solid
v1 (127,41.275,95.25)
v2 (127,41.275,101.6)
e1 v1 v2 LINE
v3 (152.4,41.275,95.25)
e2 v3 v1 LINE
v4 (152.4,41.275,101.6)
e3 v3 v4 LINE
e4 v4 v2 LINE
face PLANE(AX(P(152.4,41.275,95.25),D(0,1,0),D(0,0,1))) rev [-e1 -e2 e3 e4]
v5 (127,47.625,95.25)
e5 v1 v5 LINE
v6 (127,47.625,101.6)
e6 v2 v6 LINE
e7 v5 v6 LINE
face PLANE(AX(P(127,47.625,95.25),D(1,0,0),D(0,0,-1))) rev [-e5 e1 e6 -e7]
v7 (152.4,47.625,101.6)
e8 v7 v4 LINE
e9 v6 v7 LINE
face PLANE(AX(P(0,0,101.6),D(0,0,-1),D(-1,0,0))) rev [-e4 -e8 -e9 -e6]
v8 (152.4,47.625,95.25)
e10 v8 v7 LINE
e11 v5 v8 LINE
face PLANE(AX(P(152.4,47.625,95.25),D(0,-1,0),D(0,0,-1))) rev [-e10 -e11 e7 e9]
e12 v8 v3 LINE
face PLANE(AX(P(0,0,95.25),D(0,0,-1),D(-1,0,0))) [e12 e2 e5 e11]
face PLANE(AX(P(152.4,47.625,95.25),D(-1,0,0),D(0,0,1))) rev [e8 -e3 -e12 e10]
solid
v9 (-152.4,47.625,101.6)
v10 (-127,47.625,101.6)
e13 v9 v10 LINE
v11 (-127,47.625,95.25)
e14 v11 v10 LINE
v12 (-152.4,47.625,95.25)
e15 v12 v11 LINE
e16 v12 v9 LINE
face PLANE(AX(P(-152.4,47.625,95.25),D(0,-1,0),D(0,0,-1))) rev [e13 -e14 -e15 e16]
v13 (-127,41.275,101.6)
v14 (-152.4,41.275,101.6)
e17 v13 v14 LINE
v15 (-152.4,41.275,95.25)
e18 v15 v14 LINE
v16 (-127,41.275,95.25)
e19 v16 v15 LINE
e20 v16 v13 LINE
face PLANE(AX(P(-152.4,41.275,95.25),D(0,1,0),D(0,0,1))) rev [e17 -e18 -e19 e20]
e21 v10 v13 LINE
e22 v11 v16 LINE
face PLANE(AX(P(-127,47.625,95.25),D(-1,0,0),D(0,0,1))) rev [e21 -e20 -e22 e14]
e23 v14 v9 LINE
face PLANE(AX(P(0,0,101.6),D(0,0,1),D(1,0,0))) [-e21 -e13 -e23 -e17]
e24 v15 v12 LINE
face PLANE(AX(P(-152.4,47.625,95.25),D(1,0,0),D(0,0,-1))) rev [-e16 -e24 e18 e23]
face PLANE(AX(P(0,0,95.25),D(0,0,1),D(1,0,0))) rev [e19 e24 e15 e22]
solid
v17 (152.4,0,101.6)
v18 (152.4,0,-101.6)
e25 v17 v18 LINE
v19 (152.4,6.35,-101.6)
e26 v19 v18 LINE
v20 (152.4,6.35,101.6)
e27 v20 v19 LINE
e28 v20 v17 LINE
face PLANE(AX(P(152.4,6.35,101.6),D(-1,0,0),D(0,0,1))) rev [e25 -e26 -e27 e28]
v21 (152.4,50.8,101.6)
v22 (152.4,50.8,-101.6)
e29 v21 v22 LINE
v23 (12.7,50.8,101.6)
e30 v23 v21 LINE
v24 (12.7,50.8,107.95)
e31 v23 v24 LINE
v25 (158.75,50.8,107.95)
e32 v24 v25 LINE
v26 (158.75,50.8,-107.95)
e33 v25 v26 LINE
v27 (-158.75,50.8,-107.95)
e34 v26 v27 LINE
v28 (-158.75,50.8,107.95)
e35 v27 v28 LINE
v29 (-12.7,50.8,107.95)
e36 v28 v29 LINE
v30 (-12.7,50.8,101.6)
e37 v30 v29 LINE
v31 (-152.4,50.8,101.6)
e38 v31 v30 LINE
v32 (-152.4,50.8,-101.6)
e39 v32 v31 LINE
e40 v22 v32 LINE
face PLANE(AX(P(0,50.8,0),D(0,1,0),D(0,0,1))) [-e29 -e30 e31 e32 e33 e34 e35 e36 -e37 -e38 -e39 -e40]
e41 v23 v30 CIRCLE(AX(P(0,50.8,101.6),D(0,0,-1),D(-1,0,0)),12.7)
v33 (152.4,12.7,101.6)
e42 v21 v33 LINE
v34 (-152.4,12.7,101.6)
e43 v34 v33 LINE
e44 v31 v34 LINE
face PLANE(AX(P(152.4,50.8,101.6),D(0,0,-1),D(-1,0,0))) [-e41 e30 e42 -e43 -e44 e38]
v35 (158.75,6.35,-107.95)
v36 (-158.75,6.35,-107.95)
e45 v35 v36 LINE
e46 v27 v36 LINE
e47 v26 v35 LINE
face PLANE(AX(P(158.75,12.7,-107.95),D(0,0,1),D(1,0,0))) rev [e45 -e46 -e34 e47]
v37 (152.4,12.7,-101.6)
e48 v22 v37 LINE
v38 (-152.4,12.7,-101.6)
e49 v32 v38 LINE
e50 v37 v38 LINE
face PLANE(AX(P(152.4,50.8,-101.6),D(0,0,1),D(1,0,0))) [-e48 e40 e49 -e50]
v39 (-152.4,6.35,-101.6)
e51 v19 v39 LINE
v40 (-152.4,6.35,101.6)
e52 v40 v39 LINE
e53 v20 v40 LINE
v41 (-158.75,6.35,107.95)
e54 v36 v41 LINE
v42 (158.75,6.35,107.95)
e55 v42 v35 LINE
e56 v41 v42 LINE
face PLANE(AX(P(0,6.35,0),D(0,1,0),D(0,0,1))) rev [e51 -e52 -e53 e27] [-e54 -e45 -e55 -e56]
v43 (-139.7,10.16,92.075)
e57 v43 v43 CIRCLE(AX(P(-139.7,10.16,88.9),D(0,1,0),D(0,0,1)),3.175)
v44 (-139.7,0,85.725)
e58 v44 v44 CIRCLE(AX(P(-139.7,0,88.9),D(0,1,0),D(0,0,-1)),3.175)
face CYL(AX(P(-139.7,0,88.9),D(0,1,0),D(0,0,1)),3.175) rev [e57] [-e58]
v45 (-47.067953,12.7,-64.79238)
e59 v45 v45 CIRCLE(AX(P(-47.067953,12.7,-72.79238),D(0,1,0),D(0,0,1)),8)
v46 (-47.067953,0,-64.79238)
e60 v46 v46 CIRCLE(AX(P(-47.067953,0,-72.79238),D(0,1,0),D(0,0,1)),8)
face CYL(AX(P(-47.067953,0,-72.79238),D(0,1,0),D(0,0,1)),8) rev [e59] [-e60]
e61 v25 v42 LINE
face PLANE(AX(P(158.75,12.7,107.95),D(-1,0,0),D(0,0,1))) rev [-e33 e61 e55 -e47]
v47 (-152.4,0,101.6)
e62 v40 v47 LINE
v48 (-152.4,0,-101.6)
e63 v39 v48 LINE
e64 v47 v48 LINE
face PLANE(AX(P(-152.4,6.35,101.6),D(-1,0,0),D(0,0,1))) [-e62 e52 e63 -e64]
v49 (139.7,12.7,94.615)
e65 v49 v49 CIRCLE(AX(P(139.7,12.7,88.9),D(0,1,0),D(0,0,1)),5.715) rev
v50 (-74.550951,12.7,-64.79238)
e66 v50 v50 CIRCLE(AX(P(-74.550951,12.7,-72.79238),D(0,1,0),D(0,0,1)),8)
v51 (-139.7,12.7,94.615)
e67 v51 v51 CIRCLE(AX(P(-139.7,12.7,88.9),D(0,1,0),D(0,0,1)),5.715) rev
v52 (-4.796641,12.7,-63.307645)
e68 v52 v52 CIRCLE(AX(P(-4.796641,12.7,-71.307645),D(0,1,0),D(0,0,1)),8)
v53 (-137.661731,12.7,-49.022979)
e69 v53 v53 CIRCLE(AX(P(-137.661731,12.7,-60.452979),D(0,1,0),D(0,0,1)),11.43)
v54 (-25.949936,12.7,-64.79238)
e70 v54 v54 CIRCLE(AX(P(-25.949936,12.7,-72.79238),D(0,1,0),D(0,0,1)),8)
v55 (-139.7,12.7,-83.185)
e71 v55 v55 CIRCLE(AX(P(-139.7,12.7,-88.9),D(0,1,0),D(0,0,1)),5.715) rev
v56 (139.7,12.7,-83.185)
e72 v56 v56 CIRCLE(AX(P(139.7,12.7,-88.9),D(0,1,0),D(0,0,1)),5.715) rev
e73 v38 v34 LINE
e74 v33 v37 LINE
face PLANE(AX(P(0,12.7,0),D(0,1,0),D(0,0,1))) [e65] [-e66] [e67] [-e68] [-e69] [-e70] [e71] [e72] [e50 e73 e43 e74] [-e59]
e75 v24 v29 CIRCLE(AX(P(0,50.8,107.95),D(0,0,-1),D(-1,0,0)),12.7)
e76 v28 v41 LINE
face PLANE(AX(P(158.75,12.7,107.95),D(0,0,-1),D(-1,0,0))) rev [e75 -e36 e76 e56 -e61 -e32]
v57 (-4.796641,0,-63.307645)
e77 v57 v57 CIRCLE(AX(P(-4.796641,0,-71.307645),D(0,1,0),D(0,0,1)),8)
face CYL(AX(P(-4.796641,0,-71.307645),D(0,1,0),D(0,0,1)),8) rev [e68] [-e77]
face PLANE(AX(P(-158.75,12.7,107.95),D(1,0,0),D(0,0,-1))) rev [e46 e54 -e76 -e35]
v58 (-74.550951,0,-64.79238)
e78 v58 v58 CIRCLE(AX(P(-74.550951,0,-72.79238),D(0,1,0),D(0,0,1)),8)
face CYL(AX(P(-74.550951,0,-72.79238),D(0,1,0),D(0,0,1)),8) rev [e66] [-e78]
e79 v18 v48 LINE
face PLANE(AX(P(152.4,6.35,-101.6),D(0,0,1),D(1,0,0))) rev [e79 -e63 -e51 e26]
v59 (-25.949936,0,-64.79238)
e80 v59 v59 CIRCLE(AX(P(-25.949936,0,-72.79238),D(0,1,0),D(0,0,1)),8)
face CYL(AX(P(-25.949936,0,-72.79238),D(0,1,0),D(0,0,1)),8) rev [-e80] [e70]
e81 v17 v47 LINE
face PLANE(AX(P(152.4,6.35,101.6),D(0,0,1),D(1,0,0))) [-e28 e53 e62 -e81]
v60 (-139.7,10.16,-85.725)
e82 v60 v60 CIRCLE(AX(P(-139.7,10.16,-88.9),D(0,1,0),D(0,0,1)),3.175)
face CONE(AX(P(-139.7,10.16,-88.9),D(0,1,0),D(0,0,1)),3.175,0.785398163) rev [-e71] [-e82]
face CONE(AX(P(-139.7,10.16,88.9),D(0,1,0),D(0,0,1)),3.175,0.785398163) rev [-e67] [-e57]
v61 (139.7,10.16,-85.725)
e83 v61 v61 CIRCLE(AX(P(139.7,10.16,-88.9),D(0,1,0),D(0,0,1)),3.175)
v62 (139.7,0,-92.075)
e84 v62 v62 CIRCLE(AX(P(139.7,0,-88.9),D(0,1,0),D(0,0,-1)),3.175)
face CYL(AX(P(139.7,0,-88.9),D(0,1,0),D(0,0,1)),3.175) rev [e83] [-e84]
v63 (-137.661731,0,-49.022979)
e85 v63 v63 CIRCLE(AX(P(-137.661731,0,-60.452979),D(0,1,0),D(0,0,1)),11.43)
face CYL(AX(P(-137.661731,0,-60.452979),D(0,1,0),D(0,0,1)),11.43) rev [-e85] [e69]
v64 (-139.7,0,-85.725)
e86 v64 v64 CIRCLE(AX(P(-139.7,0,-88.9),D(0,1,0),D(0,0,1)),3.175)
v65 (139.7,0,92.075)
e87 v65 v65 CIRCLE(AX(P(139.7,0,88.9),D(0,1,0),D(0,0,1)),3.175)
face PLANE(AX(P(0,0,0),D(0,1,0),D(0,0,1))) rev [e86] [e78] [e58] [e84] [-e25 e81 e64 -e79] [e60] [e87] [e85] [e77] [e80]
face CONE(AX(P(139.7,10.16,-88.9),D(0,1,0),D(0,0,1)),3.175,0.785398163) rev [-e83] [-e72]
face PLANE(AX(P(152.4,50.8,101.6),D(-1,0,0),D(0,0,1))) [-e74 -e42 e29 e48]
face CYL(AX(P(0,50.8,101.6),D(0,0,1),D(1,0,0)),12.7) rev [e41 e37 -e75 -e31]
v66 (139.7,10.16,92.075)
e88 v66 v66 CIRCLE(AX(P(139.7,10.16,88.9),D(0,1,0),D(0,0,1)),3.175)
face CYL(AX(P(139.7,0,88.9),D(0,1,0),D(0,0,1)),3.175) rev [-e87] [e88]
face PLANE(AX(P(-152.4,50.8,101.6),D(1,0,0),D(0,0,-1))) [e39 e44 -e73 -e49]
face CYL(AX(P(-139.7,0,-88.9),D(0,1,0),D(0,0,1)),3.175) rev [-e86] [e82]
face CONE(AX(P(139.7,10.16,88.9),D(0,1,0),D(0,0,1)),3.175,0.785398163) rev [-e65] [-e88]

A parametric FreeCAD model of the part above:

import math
import FreeCAD as App
import Part
import Sketcher

V = App.Vector
Q = App.Units.Quantity


def edges_at(feature, points):
    """Names of the edges that pass closest to the given points."""
    edges = feature.Shape.Edges
    near = lambda p: min(range(len(edges)), key=lambda i: edges[i].distToShape(Part.Vertex(*p))[0])
    return sorted({f"Edge{near(p) + 1}" for p in points})


def add_polygon(sketch, points):
    """Adds a closed chain of lines whose ends are joined by coincident constraints."""
    first, n = sketch.GeometryCount, len(points)
    for a, b in zip(points, points[1:] + points[:1]):
        sketch.addGeometry(Part.LineSegment(App.Vector(*a, 0), App.Vector(*b, 0)), False)
    for i in range(n):
        sketch.addConstraint(Sketcher.Constraint("Coincident", first + i, 2, first + (i + 1) % n, 1))

doc = App.newDocument("Part")
body = doc.addObject("PartDesign::Body", "Body")

sketch1 = doc.addObject("Sketcher::SketchObject", "Sketch")
body.addObject(sketch1)
sketch1.AttachmentSupport = (doc.XZ_Plane, [""])
sketch1.MapMode = "FlatFace"
add_polygon(sketch1, [(-152.4, -101.6), (-152.4, 101.6), (152.4, 101.6), (152.4, -101.6)])
sketch1.addConstraint([
    Sketcher.Constraint("Vertical", 0),
    Sketcher.Constraint("Horizontal", 1),
    Sketcher.Constraint("Vertical", 2),
    Sketcher.Constraint("Horizontal", 3),
    Sketcher.Constraint("Symmetric", 0, 2, 2, 2, -1, 1),
    Sketcher.Constraint("DistanceX", 1, 1, 1, 2, Q("12 in")),
    Sketcher.Constraint("DistanceY", 0, 1, 0, 2, Q("8 in")),
])
pad1 = doc.addObject("PartDesign::Pad", "Pad")
body.addObject(pad1)
pad1.Profile = sketch1
pad1.Length = Q("0.25 in")
pad1.Reversed = True

sketch2 = doc.addObject("Sketcher::SketchObject", "Sketch001")
body.addObject(sketch2)
sketch2.AttachmentSupport = (doc.XZ_Plane, [""])
sketch2.MapMode = "FlatFace"
sketch2.AttachmentOffset = App.Placement(V(0, 0, -0.25 * 25.4), App.Rotation())
add_polygon(sketch2, [(-158.75, -107.95), (-158.75, 107.95), (158.75, 107.95), (158.75, -107.95)])
sketch2.addConstraint([
    Sketcher.Constraint("Vertical", 0),
    Sketcher.Constraint("Horizontal", 1),
    Sketcher.Constraint("Vertical", 2),
    Sketcher.Constraint("Horizontal", 3),
    Sketcher.Constraint("Symmetric", 0, 2, 2, 2, -1, 1),
    Sketcher.Constraint("DistanceX", 1, 1, 1, 2, Q("12.5 in")),
    Sketcher.Constraint("DistanceY", 0, 1, 0, 2, Q("8.5 in")),
])
pad2 = doc.addObject("PartDesign::Pad", "Pad001")
body.addObject(pad2)
pad2.Profile = sketch2
pad2.Length = Q("0.25 in")
pad2.Reversed = True

sketch3 = doc.addObject("Sketcher::SketchObject", "Sketch002")
body.addObject(sketch3)
sketch3.AttachmentSupport = (doc.XZ_Plane, [""])
sketch3.MapMode = "FlatFace"
sketch3.AttachmentOffset = App.Placement(V(0, 0, -0.5 * 25.4), App.Rotation())
sketch3.addGeometry([
    Part.Circle(V(-139.7, -88.9, 0), V(0, 0, 1), 3.175),
    Part.Circle(V(139.7, -88.9, 0), V(0, 0, 1), 3.175),
    Part.Circle(V(139.7, 88.9, 0), V(0, 0, 1), 3.175),
    Part.Circle(V(-139.7, 88.9, 0), V(0, 0, 1), 3.175),
], False)
sketch3.addConstraint([
    Sketcher.Constraint("Equal", 0, 1),
    Sketcher.Constraint("Equal", 1, 2),
    Sketcher.Constraint("Equal", 2, 3),
    Sketcher.Constraint("Symmetric", 0, 3, 2, 3, -1, 1),
    Sketcher.Constraint("Symmetric", 1, 3, 3, 3, -1, 1),
    Sketcher.Constraint("Symmetric", 0, 3, 1, 3, -2),
    Sketcher.Constraint("Diameter", 0, Q("0.25 in")),
    Sketcher.Constraint("DistanceX", 0, 3, 1, 3, Q("11 in")),
    Sketcher.Constraint("DistanceY", 1, 3, 2, 3, Q("7 in")),
])
pocket1 = doc.addObject("PartDesign::Pocket", "Pocket")
body.addObject(pocket1)
pocket1.Profile = sketch3
pocket1.Length = Q("0.5 in")
pocket1.Reversed = True
doc.recompute()

chamfer = doc.addObject("PartDesign::Chamfer", "Chamfer")
body.addObject(chamfer)
chamfer.Base = (pocket1, edges_at(pocket1, [
    (-142.875, 12.7, -88.9),
    (-142.875, 12.7, 88.9),
    (136.525, 12.7, 88.9),
    (136.525, 12.7, -88.9),
]))
chamfer.Size = Q("0.1 in")

sketch4 = doc.addObject("Sketcher::SketchObject", "Sketch003")
body.addObject(sketch4)
sketch4.AttachmentSupport = (doc.XZ_Plane, [""])
sketch4.MapMode = "FlatFace"
sketch4.AttachmentOffset = App.Placement(V(0, 0, -0.5 * 25.4), App.Rotation())
add_polygon(sketch4, [(-158.75, -107.95), (-158.75, 107.95), (158.75, 107.95), (158.75, -107.95)])
add_polygon(sketch4, [(152.4, 101.6), (-152.4, 101.6), (-152.4, -101.6), (152.4, -101.6)])
sketch4.addConstraint([
    Sketcher.Constraint("Vertical", 0),
    Sketcher.Constraint("Horizontal", 1),
    Sketcher.Constraint("Vertical", 2),
    Sketcher.Constraint("Horizontal", 3),
    Sketcher.Constraint("Horizontal", 4),
    Sketcher.Constraint("Vertical", 5),
    Sketcher.Constraint("Horizontal", 6),
    Sketcher.Constraint("Vertical", 7),
    Sketcher.Constraint("Symmetric", 0, 2, 2, 2, -1, 1),
    Sketcher.Constraint("Symmetric", 4, 2, 6, 2, -1, 1),
    Sketcher.Constraint("DistanceX", 4, 2, 4, 1, Q("12 in")),
    Sketcher.Constraint("DistanceY", 5, 2, 5, 1, Q("8 in")),
    Sketcher.Constraint("DistanceX", 1, 1, 1, 2, Q("12.5 in")),
    Sketcher.Constraint("DistanceY", 0, 1, 0, 2, Q("8.5 in")),
])
pad3 = doc.addObject("PartDesign::Pad", "Pad002")
body.addObject(pad3)
pad3.Profile = sketch4
pad3.Length = Q("1.5 in")
pad3.Reversed = True

sketch5 = doc.addObject("Sketcher::SketchObject", "Sketch004")
body.addObject(sketch5)
sketch5.AttachmentSupport = (doc.XY_Plane, [""])
sketch5.MapMode = "FlatFace"
sketch5.AttachmentOffset = App.Placement(V(0, 0, 4.25 * 25.4), App.Rotation())
sketch5.addGeometry([
    Part.LineSegment(V(12.7, 50.8, 0), V(-12.7, 50.8, 0)),
    Part.ArcOfCircle(Part.Circle(V(0, 50.8, 0), V(0, 0, 1), 12.7), math.radians(180), math.radians(360)),
], False)
sketch5.addConstraint([
    Sketcher.Constraint("Coincident", 0, 1, 1, 2),
    Sketcher.Constraint("Coincident", 1, 1, 0, 2),
    Sketcher.Constraint("Horizontal", 0),
    Sketcher.Constraint("PointOnObject", 1, 3, -2),
    Sketcher.Constraint("Horizontal", 1, 3, 0, 1),
    Sketcher.Constraint("Radius", 1, Q("0.5 in")),
    Sketcher.Constraint("DistanceY", -1, 1, 1, 3, Q("2 in")),
])
pocket2 = doc.addObject("PartDesign::Pocket", "Pocket001")
body.addObject(pocket2)
pocket2.Profile = sketch5
pocket2.Length = Q("0.25 in")

sketch6 = doc.addObject("Sketcher::SketchObject", "Sketch005")
body.addObject(sketch6)
sketch6.AttachmentSupport = (doc.XZ_Plane, [""])
sketch6.MapMode = "FlatFace"
sketch6.AttachmentOffset = App.Placement(V(0, 0, -0.5 * 25.4), App.Rotation())
sketch6.addGeometry([
    Part.Circle(V(-137.661731, -60.452979, 0), V(0, 0, 1), 11.43),
    Part.Circle(V(-74.550951, -72.79238, 0), V(0, 0, 1), 8),
    Part.Circle(V(-47.067953, -72.79238, 0), V(0, 0, 1), 8),
    Part.Circle(V(-25.949936, -72.79238, 0), V(0, 0, 1), 8),
    Part.Circle(V(-4.796641, -71.307645, 0), V(0, 0, 1), 8),
], False)
sketch6.addConstraint([
    Sketcher.Constraint("Equal", 1, 2),
    Sketcher.Constraint("Equal", 2, 3),
    Sketcher.Constraint("Equal", 3, 4),
    Sketcher.Constraint("Horizontal", 1, 3, 2, 3),
    Sketcher.Constraint("Horizontal", 2, 3, 3, 3),
    Sketcher.Constraint("Diameter", 0, Q("0.9 in")),
    Sketcher.Constraint("Diameter", 1, Q("16 mm")),
    Sketcher.Constraint("DistanceY", 1, 3, 0, 3, Q("12.339401 mm")),
    Sketcher.Constraint("DistanceX", 1, 3, 2, 3, Q("27.482998 mm")),
    Sketcher.Constraint("DistanceX", 0, 3, -1, 1, Q("137.661731 mm")),
    Sketcher.Constraint("DistanceY", 0, 3, -1, 1, Q("60.452979 mm")),
    Sketcher.Constraint("DistanceX", 1, 3, -1, 1, Q("74.550951 mm")),
    Sketcher.Constraint("DistanceX", 4, 3, -1, 1, Q("4.796641 mm")),
    Sketcher.Constraint("DistanceX", 3, 3, -1, 1, Q("25.949936 mm")),
    Sketcher.Constraint("DistanceY", 4, 3, -1, 1, Q("71.307645 mm")),
])
pocket3 = doc.addObject("PartDesign::Pocket", "Pocket002")
body.addObject(pocket3)
pocket3.Profile = sketch6
pocket3.Length = Q("0.5 in")
pocket3.Reversed = True
body2 = doc.addObject("PartDesign::Body", "Body001")

sketch7 = doc.addObject("Sketcher::SketchObject", "Sketch006")
body2.addObject(sketch7)
sketch7.AttachmentSupport = (doc.getObject("XY_Plane001"), [""])
sketch7.MapMode = "FlatFace"
sketch7.AttachmentOffset = App.Placement(V(0, 0, 4 * 25.4), App.Rotation())
add_polygon(sketch7, [(152.4, 47.625), (152.4, 41.275), (127, 41.275), (127, 47.625)])
sketch7.addConstraint([
    Sketcher.Constraint("Vertical", 0),
    Sketcher.Constraint("Horizontal", 1),
    Sketcher.Constraint("Vertical", 2),
    Sketcher.Constraint("Horizontal", 3),
    Sketcher.Constraint("DistanceX", 1, 2, 1, 1, Q("1 in")),
    Sketcher.Constraint("DistanceX", -1, 1, 0, 2, Q("6 in")),
    Sketcher.Constraint("DistanceY", 0, 2, 0, 1, Q("0.25 in")),
    Sketcher.Constraint("DistanceY", -1, 1, 0, 2, Q("1.625 in")),
])
pad4 = doc.addObject("PartDesign::Pad", "Pad003")
body2.addObject(pad4)
pad4.Profile = sketch7
pad4.Length = Q("0.25 in")
pad4.Reversed = True
body3 = doc.addObject("PartDesign::Body", "Body002")

sketch8 = doc.addObject("Sketcher::SketchObject", "Sketch007")
body3.addObject(sketch8)
sketch8.AttachmentSupport = (doc.getObject("XY_Plane002"), [""])
sketch8.MapMode = "FlatFace"
sketch8.AttachmentOffset = App.Placement(V(0, 0, 4 * 25.4), App.Rotation())
add_polygon(sketch8, [(-127, 47.625), (-127, 41.275), (-152.4, 41.275), (-152.4, 47.625)])
sketch8.addConstraint([
    Sketcher.Constraint("Vertical", 0),
    Sketcher.Constraint("Horizontal", 1),
    Sketcher.Constraint("Vertical", 2),
    Sketcher.Constraint("Horizontal", 3),
    Sketcher.Constraint("DistanceX", 1, 2, 1, 1, Q("1 in")),
    Sketcher.Constraint("DistanceX", 0, 2, -1, 1, Q("5 in")),
    Sketcher.Constraint("DistanceY", 0, 2, 0, 1, Q("0.25 in")),
    Sketcher.Constraint("DistanceY", -1, 1, 0, 2, Q("1.625 in")),
])
pad5 = doc.addObject("PartDesign::Pad", "Pad004")
body3.addObject(pad5)
pad5.Profile = sketch8
pad5.Length = Q("0.25 in")
pad5.Reversed = True

doc.recompute()
